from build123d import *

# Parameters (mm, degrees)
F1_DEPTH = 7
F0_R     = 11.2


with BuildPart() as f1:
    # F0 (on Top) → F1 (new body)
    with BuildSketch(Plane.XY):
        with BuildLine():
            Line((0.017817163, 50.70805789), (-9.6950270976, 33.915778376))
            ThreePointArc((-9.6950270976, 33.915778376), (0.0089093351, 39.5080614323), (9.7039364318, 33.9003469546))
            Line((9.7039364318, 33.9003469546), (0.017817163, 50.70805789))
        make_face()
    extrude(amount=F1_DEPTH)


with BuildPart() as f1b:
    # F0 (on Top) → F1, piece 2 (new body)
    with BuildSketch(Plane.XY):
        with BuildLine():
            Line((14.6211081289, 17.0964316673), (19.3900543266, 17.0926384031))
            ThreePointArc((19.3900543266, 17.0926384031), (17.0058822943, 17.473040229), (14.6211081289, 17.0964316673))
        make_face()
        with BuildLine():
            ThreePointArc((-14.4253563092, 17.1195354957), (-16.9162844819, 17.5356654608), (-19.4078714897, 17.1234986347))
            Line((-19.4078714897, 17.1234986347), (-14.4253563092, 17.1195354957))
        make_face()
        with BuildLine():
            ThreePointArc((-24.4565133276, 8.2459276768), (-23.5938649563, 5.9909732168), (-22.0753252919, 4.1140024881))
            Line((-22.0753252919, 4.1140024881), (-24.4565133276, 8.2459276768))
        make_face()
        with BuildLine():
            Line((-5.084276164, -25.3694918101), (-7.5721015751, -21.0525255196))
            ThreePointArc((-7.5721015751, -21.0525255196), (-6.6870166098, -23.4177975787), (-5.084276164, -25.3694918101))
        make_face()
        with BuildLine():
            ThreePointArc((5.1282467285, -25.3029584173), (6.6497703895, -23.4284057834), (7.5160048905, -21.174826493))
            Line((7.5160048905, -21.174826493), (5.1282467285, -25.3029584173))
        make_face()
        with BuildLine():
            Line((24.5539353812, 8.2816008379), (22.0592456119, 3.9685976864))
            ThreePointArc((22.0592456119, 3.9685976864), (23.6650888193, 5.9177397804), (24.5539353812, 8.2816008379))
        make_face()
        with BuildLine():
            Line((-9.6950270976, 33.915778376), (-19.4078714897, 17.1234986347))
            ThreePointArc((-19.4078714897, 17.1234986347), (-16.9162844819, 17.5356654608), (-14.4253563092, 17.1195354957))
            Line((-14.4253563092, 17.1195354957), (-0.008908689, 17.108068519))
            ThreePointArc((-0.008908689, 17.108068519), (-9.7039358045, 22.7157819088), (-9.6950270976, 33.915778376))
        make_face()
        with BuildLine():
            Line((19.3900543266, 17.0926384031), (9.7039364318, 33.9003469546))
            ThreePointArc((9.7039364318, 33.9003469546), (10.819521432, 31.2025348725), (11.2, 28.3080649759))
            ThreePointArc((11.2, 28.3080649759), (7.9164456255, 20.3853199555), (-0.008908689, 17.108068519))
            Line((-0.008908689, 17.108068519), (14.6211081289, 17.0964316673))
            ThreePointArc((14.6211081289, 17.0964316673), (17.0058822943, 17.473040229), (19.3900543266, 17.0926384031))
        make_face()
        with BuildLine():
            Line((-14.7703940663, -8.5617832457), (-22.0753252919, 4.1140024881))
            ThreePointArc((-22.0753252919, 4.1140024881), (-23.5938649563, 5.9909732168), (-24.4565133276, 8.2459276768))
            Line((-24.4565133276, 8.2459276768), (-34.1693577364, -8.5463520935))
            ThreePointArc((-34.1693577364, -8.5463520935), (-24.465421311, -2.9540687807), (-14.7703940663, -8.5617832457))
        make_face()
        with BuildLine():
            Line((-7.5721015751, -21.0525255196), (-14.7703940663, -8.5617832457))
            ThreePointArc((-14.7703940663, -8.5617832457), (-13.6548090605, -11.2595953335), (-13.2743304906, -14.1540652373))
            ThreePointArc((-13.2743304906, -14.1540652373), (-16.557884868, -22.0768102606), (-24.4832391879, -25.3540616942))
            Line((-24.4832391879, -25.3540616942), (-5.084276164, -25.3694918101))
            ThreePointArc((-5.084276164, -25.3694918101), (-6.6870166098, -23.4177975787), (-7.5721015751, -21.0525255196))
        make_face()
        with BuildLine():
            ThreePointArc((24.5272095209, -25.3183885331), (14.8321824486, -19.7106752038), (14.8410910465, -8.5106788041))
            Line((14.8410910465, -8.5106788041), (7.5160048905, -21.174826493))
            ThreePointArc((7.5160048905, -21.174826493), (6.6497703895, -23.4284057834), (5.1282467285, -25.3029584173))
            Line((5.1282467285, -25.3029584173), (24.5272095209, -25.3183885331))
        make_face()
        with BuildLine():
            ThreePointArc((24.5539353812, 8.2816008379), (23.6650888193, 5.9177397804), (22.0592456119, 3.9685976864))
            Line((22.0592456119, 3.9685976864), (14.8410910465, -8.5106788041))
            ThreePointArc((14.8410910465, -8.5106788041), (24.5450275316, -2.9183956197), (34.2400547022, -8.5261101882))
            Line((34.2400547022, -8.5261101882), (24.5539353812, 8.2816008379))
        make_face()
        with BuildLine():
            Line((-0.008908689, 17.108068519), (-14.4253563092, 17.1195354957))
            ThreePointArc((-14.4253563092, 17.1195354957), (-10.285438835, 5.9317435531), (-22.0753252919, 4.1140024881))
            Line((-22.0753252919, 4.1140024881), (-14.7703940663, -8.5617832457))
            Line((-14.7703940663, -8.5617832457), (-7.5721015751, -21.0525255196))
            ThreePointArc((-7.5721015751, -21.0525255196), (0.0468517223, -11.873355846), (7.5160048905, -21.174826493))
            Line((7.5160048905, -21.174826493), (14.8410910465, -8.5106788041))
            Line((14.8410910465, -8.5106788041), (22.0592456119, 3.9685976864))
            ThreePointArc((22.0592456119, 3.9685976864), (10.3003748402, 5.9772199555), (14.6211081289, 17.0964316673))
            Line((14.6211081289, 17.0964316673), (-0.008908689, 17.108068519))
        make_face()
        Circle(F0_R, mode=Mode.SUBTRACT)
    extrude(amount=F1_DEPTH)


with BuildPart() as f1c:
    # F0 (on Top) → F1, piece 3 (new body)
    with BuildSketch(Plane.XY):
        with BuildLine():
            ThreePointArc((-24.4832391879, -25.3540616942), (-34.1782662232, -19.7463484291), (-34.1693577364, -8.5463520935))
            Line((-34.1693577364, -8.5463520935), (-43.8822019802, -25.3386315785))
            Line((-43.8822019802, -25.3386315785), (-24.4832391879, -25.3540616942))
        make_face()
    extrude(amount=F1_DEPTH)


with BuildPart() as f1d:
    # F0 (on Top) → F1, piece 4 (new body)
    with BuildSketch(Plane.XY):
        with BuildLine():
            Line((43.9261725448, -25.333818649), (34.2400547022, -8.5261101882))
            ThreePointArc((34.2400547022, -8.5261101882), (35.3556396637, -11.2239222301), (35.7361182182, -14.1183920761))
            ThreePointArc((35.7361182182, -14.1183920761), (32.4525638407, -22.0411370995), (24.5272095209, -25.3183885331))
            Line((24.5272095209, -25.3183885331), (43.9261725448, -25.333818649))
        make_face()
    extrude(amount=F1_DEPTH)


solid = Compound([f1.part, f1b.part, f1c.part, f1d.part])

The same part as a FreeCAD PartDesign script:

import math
import FreeCAD as App
import Part
import Sketcher

doc = App.newDocument("Part")
body = doc.addObject("PartDesign::Body", "Body")

# Sketch on XY plane
sketch1 = body.newObject("Sketcher::SketchObject", "Sketch")
sketch1.AttachmentSupport = (doc.getObject("XY_Plane"), [""])
sketch1.MapMode = "FlatFace"
sketch1.addGeometry(Part.LineSegment(App.Vector(0, 51, 0), App.Vector(-10, 34, 0)), False)
sketch1.addGeometry(Part.ArcOfCircle(Part.Circle(App.Vector(0, 28, 0), App.Vector(0, 0, 1), 11), math.radians(30), math.radians(150)), False)
sketch1.addGeometry(Part.LineSegment(App.Vector(10, 34, 0), App.Vector(0, 51, 0)), False)
sketch1.addConstraint(Sketcher.Constraint("Tangent", 0, 2, 1, 2))
sketch1.addConstraint(Sketcher.Constraint("Tangent", 1, 1, 2, 1))
sketch1.addConstraint(Sketcher.Constraint("Coincident", 2, 2, 0, 1))
sketch1.addConstraint(Sketcher.Constraint("PointOnObject", 1, 3, -2))
sketch1.addConstraint(Sketcher.Constraint("Radius", 1, 11.2))
sketch1.addConstraint(Sketcher.Constraint("Distance", 0, 19.398969))
sketch1.addConstraint(Sketcher.Constraint("DistanceY", -1, 1, 0, 2, 33.915778))
sketch1.addConstraint(Sketcher.Constraint("DistanceY", 1, 3, 1, 1, 5.592282))
pad1 = body.newObject("PartDesign::Pad", "Pad")
pad1.Profile = sketch1
pad1.Length = 7
body2 = doc.addObject("PartDesign::Body", "Body001")

# Sketch on XY plane
sketch2 = body2.newObject("Sketcher::SketchObject", "Sketch001")
sketch2.AttachmentSupport = (doc.getObject("XY_Plane001"), [""])
sketch2.MapMode = "FlatFace"
sketch2.addGeometry(Part.LineSegment(App.Vector(14.6, 17.1, 0), App.Vector(19.4, 17.1, 0)), False)
sketch2.addGeometry(Part.LineSegment(App.Vector(19.4, 17.1, 0), App.Vector(9.7, 33.9, 0)), False)
sketch2.addGeometry(Part.ArcOfCircle(Part.Circle(App.Vector(0, 28.3, 0), App.Vector(0, 0, 1), 11.2), math.radians(0), math.radians(30)), False)
sketch2.addGeometry(Part.ArcOfCircle(Part.Circle(App.Vector(0, 28.3, 0), App.Vector(0, 0, 1), 11.2), math.radians(-90), math.radians(0)), False)
sketch2.addGeometry(Part.ArcOfCircle(Part.Circle(App.Vector(0, 28.3, 0), App.Vector(0, 0, 1), 11.2), math.radians(150), math.radians(270)), False)
sketch2.addGeometry(Part.LineSegment(App.Vector(-9.7, 33.9, 0), App.Vector(-19.4, 17.1, 0)), False)
sketch2.addGeometry(Part.LineSegment(App.Vector(-19.4, 17.1, 0), App.Vector(-14.4, 17.1, 0)), False)
sketch2.addGeometry(Part.ArcOfCircle(Part.Circle(App.Vector(-16.9, 9.8, 0), App.Vector(0, 0, 1), 7.7), math.radians(-132), math.radians(71)), False)
sketch2.addGeometry(Part.LineSegment(App.Vector(-22.1, 4.1, 0), App.Vector(-24.5, 8.2, 0)), False)
sketch2.addGeometry(Part.LineSegment(App.Vector(-24.5, 8.2, 0), App.Vector(-34.2, -8.5, 0)), False)
sketch2.addGeometry(Part.ArcOfCircle(Part.Circle(App.Vector(-24.5, -14.2, 0), App.Vector(0, 0, 1), 11.2), math.radians(30), math.radians(150)), False)
sketch2.addGeometry(Part.ArcOfCircle(Part.Circle(App.Vector(-24.5, -14.2, 0), App.Vector(0, 0, 1), 11.2), math.radians(0), math.radians(30)), False)
sketch2.addGeometry(Part.ArcOfCircle(Part.Circle(App.Vector(-24.5, -14.2, 0), App.Vector(0, 0, 1), 11.2), math.radians(-90), math.radians(0)), False)
sketch2.addGeometry(Part.LineSegment(App.Vector(-24.5, -25.4, 0), App.Vector(-5.1, -25.4, 0)), False)
sketch2.addGeometry(Part.LineSegment(App.Vector(-5.1, -25.4, 0), App.Vector(-7.6, -21.1, 0)), False)
sketch2.addGeometry(Part.ArcOfCircle(Part.Circle(App.Vector(0, -19.6, 0), App.Vector(0, 0, 1), 7.7), math.radians(-12), math.radians(191)), False)
sketch2.addGeometry(Part.LineSegment(App.Vector(7.5, -21.2, 0), App.Vector(5.1, -25.3, 0)), False)
sketch2.addGeometry(Part.LineSegment(App.Vector(5.1, -25.3, 0), App.Vector(24.5, -25.3, 0)), False)
sketch2.addGeometry(Part.ArcOfCircle(Part.Circle(App.Vector(24.5, -14.1, 0), App.Vector(0, 0, 1), 11.2), math.radians(150), math.radians(270)), False)
sketch2.addGeometry(Part.ArcOfCircle(Part.Circle(App.Vector(24.5, -14.1, 0), App.Vector(0, 0, 1), 11.2), math.radians(30), math.radians(150)), False)
sketch2.addGeometry(Part.LineSegment(App.Vector(34.2, -8.5, 0), App.Vector(24.6, 8.3, 0)), False)
sketch2.addGeometry(Part.LineSegment(App.Vector(24.6, 8.3, 0), App.Vector(22.1, 4, 0)), False)
sketch2.addGeometry(Part.ArcOfCircle(Part.Circle(App.Vector(17, 9.8, 0), App.Vector(0, 0, 1), 7.7), math.radians(108), math.radians(311)), False)
sketch2.addGeometry(Part.Circle(App.Vector(0, 0, 0), App.Vector(0, 0, 1), 11.2), False)
sketch2.addConstraint(Sketcher.Constraint("Coincident", 0, 2, 1, 1))
sketch2.addConstraint(Sketcher.Constraint("Tangent", 1, 2, 2, 2))
sketch2.addConstraint(Sketcher.Constraint("Tangent", 2, 1, 3, 2))
sketch2.addConstraint(Sketcher.Constraint("Tangent", 3, 1, 4, 2))
sketch2.addConstraint(Sketcher.Constraint("Tangent", 4, 1, 5, 1))
sketch2.addConstraint(Sketcher.Constraint("Coincident", 5, 2, 6, 1))
sketch2.addConstraint(Sketcher.Constraint("Coincident", 6, 2, 7, 2))
sketch2.addConstraint(Sketcher.Constraint("Coincident", 7, 1, 8, 1))
sketch2.addConstraint(Sketcher.Constraint("Coincident", 8, 2, 9, 1))
sketch2.addConstraint(Sketcher.Constraint("Tangent", 9, 2, 10, 2))
sketch2.addConstraint(Sketcher.Constraint("Tangent", 10, 1, 11, 2))
sketch2.addConstraint(Sketcher.Constraint("Tangent", 11, 1, 12, 2))
sketch2.addConstraint(Sketcher.Constraint("Tangent", 12, 1, 13, 1))
sketch2.addConstraint(Sketcher.Constraint("Coincident", 13, 2, 14, 1))
sketch2.addConstraint(Sketcher.Constraint("Coincident", 14, 2, 15, 2))
sketch2.addConstraint(Sketcher.Constraint("Coincident", 15, 1, 16, 1))
sketch2.addConstraint(Sketcher.Constraint("Coincident", 16, 2, 17, 1))
sketch2.addConstraint(Sketcher.Constraint("Tangent", 17, 2, 18, 2))
sketch2.addConstraint(Sketcher.Constraint("Tangent", 18, 1, 19, 2))
sketch2.addConstraint(Sketcher.Constraint("Tangent", 19, 1, 20, 1))
sketch2.addConstraint(Sketcher.Constraint("Coincident", 20, 2, 21, 1))
sketch2.addConstraint(Sketcher.Constraint("Coincident", 21, 2, 22, 2))
sketch2.addConstraint(Sketcher.Constraint("Coincident", 22, 1, 0, 1))
sketch2.addConstraint(Sketcher.Constraint("Coincident", 23, 3, -1, 1))
sketch2.addConstraint(Sketcher.Constraint("Coincident", 4, 3, 2, 3))
sketch2.addConstraint(Sketcher.Constraint("Coincident", 12, 3, 10, 3))
sketch2.addConstraint(Sketcher.Constraint("Equal", 4, 10))
sketch2.addConstraint(Sketcher.Constraint("Equal", 7, 15))
sketch2.addConstraint(Sketcher.Constraint("Equal", 12, 18))
sketch2.addConstraint(Sketcher.Constraint("Equal", 18, 19))
sketch2.addConstraint(Sketcher.Constraint("Equal", 15, 22))
sketch2.addConstraint(Sketcher.Constraint("Equal", 19, 23))
sketch2.addConstraint(Sketcher.Constraint("PointOnObject", 2, 3, -2))
sketch2.addConstraint(Sketcher.Constraint("Parallel", 0, 6))
sketch2.addConstraint(Sketcher.Constraint("Parallel", 1, 8))
sketch2.addConstraint(Sketcher.Constraint("Parallel", 5, 9))
sketch2.addConstraint(Sketcher.Constraint("Parallel", 6, 13))
sketch2.addConstraint(Sketcher.Constraint("Parallel", 8, 14))
sketch2.addConstraint(Sketcher.Constraint("Parallel", 9, 16))
sketch2.addConstraint(Sketcher.Constraint("Parallel", 13, 17))
sketch2.addConstraint(Sketcher.Constraint("Parallel", 14, 20))
sketch2.addConstraint(Sketcher.Constraint("Parallel", 16, 21))
sketch2.addConstraint(Sketcher.Constraint("Horizontal", 4, 3, 2, 1))
sketch2.addConstraint(Sketcher.Constraint("Horizontal", 12, 3, 11, 1))
sketch2.addConstraint(Sketcher.Constraint("Equal", 1, 5))
sketch2.addConstraint(Sketcher.Constraint("Equal", 0, 8))
sketch2.addConstraint(Sketcher.Constraint("Equal", 5, 9))
sketch2.addConstraint(Sketcher.Constraint("Equal", 9, 13))
sketch2.addConstraint(Sketcher.Constraint("Equal", 6, 14))
sketch2.addConstraint(Sketcher.Constraint("Equal", 8, 16))
sketch2.addConstraint(Sketcher.Constraint("Equal", 13, 17))
sketch2.addConstraint(Sketcher.Constraint("Equal", 17, 20))
sketch2.addConstraint(Sketcher.Constraint("Equal", 14, 21))
sketch2.addConstraint(Sketcher.Constraint("Diameter", 23, 22.4))
sketch2.addConstraint(Sketcher.Constraint("Radius", 7, 7.7))
sketch2.addConstraint(Sketcher.Constraint("DistanceY", -1, 1, 5, 2, 17.123499))
sketch2.addConstraint(Sketcher.Constraint("DistanceX", 14, 2, -1, 1, 7.572102))
sketch2.addConstraint(Sketcher.Constraint("DistanceY", -1, 1, 20, 2, 8.281601))
sketch2.addConstraint(Sketcher.Constraint("DistanceY", 15, 1, 14, 2, 0.122301))
sketch2.addConstraint(Sketcher.Constraint("Distance", 5, 19.398969))
sketch2.addConstraint(Sketcher.Constraint("DistanceX", 7, 3, -1, 1, 16.922409))
sketch2.addConstraint(Sketcher.Constraint("DistanceX", 10, 3, -1, 1, 24.47433))
sketch2.addConstraint(Sketcher.Constraint("DistanceX", 15, 3, -1, 1, 0.015561))
sketch2.addConstraint(Sketcher.Constraint("DistanceX", -1, 1, 18, 3, 24.536118))
sketch2.addConstraint(Sketcher.Constraint("DistanceY", -1, 1, 0, 2, 17.092638))
sketch2.addConstraint(Sketcher.Constraint("DistanceX", 3, 1, -1, 1, 0.008909))
sketch2.addConstraint(Sketcher.Constraint("DistanceY", -1, 1, 3, 1, 17.108069))
sketch2.addConstraint(Sketcher.Constraint("DistanceX", -1, 1, 18, 1, 14.841091))
sketch2.addConstraint(Sketcher.Constraint("DistanceY", 11, 3, 10, 1, 5.592282))
pad2 = body2.newObject("PartDesign::Pad", "Pad001")
pad2.Profile = sketch2
pad2.Length = 7
body3 = doc.addObject("PartDesign::Body", "Body002")

# Sketch on XY plane
sketch3 = body3.newObject("Sketcher::SketchObject", "Sketch002")
sketch3.AttachmentSupport = (doc.getObject("XY_Plane002"), [""])
sketch3.MapMode = "FlatFace"
sketch3.addGeometry(Part.ArcOfCircle(Part.Circle(App.Vector(-24, -14, 0), App.Vector(0, 0, 1), 11), math.radians(150), math.radians(270)), False)
sketch3.addGeometry(Part.LineSegment(App.Vector(-34, -9, 0), App.Vector(-44, -25, 0)), False)
sketch3.addGeometry(Part.LineSegment(App.Vector(-44, -25, 0), App.Vector(-24, -25, 0)), False)
sketch3.addConstraint(Sketcher.Constraint("Tangent", 0, 1, 1, 1))
sketch3.addConstraint(Sketcher.Constraint("Coincident", 1, 2, 2, 1))
sketch3.addConstraint(Sketcher.Constraint("Tangent", 2, 2, 0, 2))
sketch3.addConstraint(Sketcher.Constraint("Radius", 0, 11.2))
sketch3.addConstraint(Sketcher.Constraint("DistanceX", 1, 2, -1, 1, 43.882202))
sketch3.addConstraint(Sketcher.Constraint("Distance", 1, 19.398969))
sketch3.addConstraint(Sketcher.Constraint("DistanceX", 0, 3, -1, 1, 24.47433))
sketch3.addConstraint(Sketcher.Constraint("DistanceY", 1, 2, -1, 1, 25.338632))
pad3 = body3.newObject("PartDesign::Pad", "Pad002")
pad3.Profile = sketch3
pad3.Length = 7
body4 = doc.addObject("PartDesign::Body", "Body003")

# Sketch on XY plane
sketch4 = body4.newObject("Sketcher::SketchObject", "Sketch003")
sketch4.AttachmentSupport = (doc.getObject("XY_Plane003"), [""])
sketch4.MapMode = "FlatFace"
sketch4.addGeometry(Part.LineSegment(App.Vector(44, -25, 0), App.Vector(34, -9, 0)), False)
sketch4.addGeometry(Part.ArcOfCircle(Part.Circle(App.Vector(25, -14, 0), App.Vector(0, 0, 1), 11), math.radians(0), math.radians(30)), False)
sketch4.addGeometry(Part.ArcOfCircle(Part.Circle(App.Vector(25, -14, 0), App.Vector(0, 0, 1), 11), math.radians(-90), math.radians(0)), False)
sketch4.addGeometry(Part.LineSegment(App.Vector(25, -25, 0), App.Vector(44, -25, 0)), False)
sketch4.addConstraint(Sketcher.Constraint("Tangent", 0, 2, 1, 2))
sketch4.addConstraint(Sketcher.Constraint("Tangent", 1, 1, 2, 2))
sketch4.addConstraint(Sketcher.Constraint("Tangent", 2, 1, 3, 1))
sketch4.addConstraint(Sketcher.Constraint("Coincident", 3, 2, 0, 1))
sketch4.addConstraint(Sketcher.Constraint("Equal", 1, 2))
sketch4.addConstraint(Sketcher.Constraint("Horizontal", 2, 3, 1, 1))
sketch4.addConstraint(Sketcher.Constraint("Radius", 1, 11.2))
sketch4.addConstraint(Sketcher.Constraint("Distance", 3, 19.398969))
sketch4.addConstraint(Sketcher.Constraint("DistanceX", -1, 1, 1, 3, 24.536118))
sketch4.addConstraint(Sketcher.Constraint("DistanceY", 0, 2, -1, 1, 8.52611))
sketch4.addConstraint(Sketcher.Constraint("DistanceX", -1, 1, 2, 1, 24.52721))
pad4 = body4.newObject("PartDesign::Pad", "Pad003")
pad4.Profile = sketch4
pad4.Length = 7

doc.recompute()
